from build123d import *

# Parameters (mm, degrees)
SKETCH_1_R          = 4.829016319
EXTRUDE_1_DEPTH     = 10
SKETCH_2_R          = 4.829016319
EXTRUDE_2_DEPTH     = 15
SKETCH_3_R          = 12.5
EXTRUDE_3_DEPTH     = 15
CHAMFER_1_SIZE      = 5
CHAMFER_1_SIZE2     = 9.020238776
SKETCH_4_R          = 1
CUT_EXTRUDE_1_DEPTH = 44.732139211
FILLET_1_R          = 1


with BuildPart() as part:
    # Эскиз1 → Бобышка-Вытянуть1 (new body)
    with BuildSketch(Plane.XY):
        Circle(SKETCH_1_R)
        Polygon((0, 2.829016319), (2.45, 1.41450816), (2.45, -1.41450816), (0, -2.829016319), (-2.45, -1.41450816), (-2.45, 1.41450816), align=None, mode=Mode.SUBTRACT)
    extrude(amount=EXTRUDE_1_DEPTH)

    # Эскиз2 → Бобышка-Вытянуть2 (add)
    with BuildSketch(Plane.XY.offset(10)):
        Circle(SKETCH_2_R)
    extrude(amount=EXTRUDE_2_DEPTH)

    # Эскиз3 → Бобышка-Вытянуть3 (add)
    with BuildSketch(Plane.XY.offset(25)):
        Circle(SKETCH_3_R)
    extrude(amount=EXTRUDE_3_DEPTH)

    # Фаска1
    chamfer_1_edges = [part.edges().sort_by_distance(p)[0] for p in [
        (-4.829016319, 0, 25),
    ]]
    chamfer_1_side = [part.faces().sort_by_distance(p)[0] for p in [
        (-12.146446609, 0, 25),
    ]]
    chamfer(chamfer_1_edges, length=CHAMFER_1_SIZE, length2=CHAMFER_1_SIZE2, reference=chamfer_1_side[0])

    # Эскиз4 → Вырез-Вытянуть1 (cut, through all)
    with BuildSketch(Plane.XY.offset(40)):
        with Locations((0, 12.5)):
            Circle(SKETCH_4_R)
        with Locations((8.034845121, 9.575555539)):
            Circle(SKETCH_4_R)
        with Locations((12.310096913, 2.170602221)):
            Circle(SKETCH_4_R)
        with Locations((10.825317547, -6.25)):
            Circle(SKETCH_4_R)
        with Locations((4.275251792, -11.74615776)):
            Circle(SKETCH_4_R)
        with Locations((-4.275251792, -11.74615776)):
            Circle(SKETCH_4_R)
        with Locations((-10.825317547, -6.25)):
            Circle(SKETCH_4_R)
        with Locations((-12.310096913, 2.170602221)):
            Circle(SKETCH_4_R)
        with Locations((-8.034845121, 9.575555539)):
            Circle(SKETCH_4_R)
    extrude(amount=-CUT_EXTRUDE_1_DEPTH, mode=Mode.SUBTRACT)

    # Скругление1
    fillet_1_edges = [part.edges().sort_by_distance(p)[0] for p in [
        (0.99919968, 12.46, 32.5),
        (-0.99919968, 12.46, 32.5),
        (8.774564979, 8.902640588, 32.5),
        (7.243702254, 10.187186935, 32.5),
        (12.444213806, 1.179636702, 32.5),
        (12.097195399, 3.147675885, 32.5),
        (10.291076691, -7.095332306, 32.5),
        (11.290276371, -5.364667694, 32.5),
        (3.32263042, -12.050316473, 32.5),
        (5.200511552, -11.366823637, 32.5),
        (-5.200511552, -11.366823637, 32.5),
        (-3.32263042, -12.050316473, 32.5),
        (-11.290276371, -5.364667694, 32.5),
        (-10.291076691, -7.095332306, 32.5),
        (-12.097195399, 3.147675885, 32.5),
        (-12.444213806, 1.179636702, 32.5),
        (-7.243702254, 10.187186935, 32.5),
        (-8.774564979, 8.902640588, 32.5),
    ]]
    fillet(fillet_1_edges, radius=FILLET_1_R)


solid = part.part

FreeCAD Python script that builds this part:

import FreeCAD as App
import Part
import Sketcher
from FreeCAD import Vector
Q = App.Units.Quantity


def edges_at(feature, points):
    """Names of the edges that pass closest to the given points."""
    edges = feature.Shape.Edges
    near = lambda p: min(range(len(edges)), key=lambda i: edges[i].distToShape(Part.Vertex(*p))[0])
    return sorted({f"Edge{near(p) + 1}" for p in points})


def add_polygon(sketch, points):
    """Adds a closed chain of lines whose ends are joined by coincident constraints."""
    first, n = sketch.GeometryCount, len(points)
    for a, b in zip(points, points[1:] + points[:1]):
        sketch.addGeometry(Part.LineSegment(App.Vector(*a, 0), App.Vector(*b, 0)), False)
    for i in range(n):
        sketch.addConstraint(Sketcher.Constraint("Coincident", first + i, 2, first + (i + 1) % n, 1))

doc = App.newDocument("Part")
body = doc.addObject("PartDesign::Body", "Body")

# Sketch on XY plane
sketch1 = body.newObject("Sketcher::SketchObject", "Sketch")
sketch1.AttachmentSupport = (doc.getObject("XY_Plane"), [""])
sketch1.MapMode = "FlatFace"
sketch1.addGeometry(Part.Circle(Vector(0, 0, 0), Vector(0, 0, 1), 4.8), False)  # 0
add_polygon(sketch1, [(-2.5, 1.4), (0, 2.8), (2.5, 1.4), (2.5, -1.4), (0, -2.8), (-2.5, -1.4)])  # lines 1-6
sketch1.addConstraint([
    Sketcher.Constraint("Vertical", 3),
    Sketcher.Constraint("Vertical", 6),
    Sketcher.Constraint("Coincident", 0, 3, -1, 1),
    Sketcher.Constraint("Symmetric", 1, 2, 4, 2, -1, 1),
    Sketcher.Constraint("Symmetric", 2, 2, 5, 2, -1, 1),
    Sketcher.Constraint("PointOnObject", 1, 2, -2),
    Sketcher.Constraint("Parallel", 1, 4),
    Sketcher.Constraint("Horizontal", 3, 2, 5, 2),
    Sketcher.Constraint("Angle", 1, Q("30 deg")),
    Sketcher.Constraint("DistanceX", 5, 2, 3, 2, Q("4.9 mm")),
    Sketcher.Constraint("Diameter", 0, Q("9.658033 mm")),
    Sketcher.Constraint("DistanceY", 3, 2, 3, 1, Q("2.829016 mm")),
])
pad1 = body.newObject("PartDesign::Pad", "Pad")
pad1.Profile = sketch1
pad1.Length = 10

# Sketch on XY plane
sketch2 = body.newObject("Sketcher::SketchObject", "Sketch001")
sketch2.AttachmentSupport = (doc.getObject("XY_Plane"), [""])
sketch2.MapMode = "FlatFace"
sketch2.AttachmentOffset = App.Placement(Vector(0, 0, 10), App.Rotation())
sketch2.addGeometry(Part.Circle(Vector(0, 0, 0), Vector(0, 0, 1), 4.8), False)
sketch2.addConstraint([
    Sketcher.Constraint("Coincident", 0, 3, -1, 1),
    Sketcher.Constraint("Diameter", 0, Q("9.658033 mm")),
])
pad2 = body.newObject("PartDesign::Pad", "Pad001")
pad2.Profile = sketch2
pad2.Length = 15

# Sketch on XY plane
sketch3 = body.newObject("Sketcher::SketchObject", "Sketch002")
sketch3.AttachmentSupport = (doc.getObject("XY_Plane"), [""])
sketch3.MapMode = "FlatFace"
sketch3.AttachmentOffset = App.Placement(Vector(0, 0, 25), App.Rotation())
sketch3.addGeometry(Part.Circle(Vector(0, 0, 0), Vector(0, 0, 1), 12), False)
sketch3.addConstraint([
    Sketcher.Constraint("Coincident", 0, 3, -1, 1),
    Sketcher.Constraint("Diameter", 0, Q("25 mm")),
])
pad3 = body.newObject("PartDesign::Pad", "Pad002")
pad3.Profile = sketch3
pad3.Length = 15
doc.recompute()

chamfer = body.newObject("PartDesign::Chamfer", "Chamfer")
chamfer.Base = (pad3, edges_at(pad3, [(-4.829, 0, 25)]))
chamfer.ChamferType = "Two distances"
chamfer.Size = 5
chamfer.Size2 = 9.020239
chamfer.FlipDirection = True

# Sketch on XY plane
sketch4 = body.newObject("Sketcher::SketchObject", "Sketch003")
sketch4.AttachmentSupport = (doc.getObject("XY_Plane"), [""])
sketch4.MapMode = "FlatFace"
sketch4.AttachmentOffset = App.Placement(Vector(0, 0, 40), App.Rotation())
sketch4.addGeometry([
    Part.Circle(Vector(0, 12.5, 0), Vector(0, 0, 1), 1),  # 0
    Part.Circle(Vector(8, 9.6, 0), Vector(0, 0, 1), 1),  # 1
    Part.Circle(Vector(12.3, 2.2, 0), Vector(0, 0, 1), 1),  # 2
    Part.Circle(Vector(10.8, -6.2, 0), Vector(0, 0, 1), 1),  # 3
    Part.Circle(Vector(4.3, -11.7, 0), Vector(0, 0, 1), 1),  # 4
    Part.Circle(Vector(-4.3, -11.7, 0), Vector(0, 0, 1), 1),  # 5
    Part.Circle(Vector(-10.8, -6.2, 0), Vector(0, 0, 1), 1),  # 6
    Part.Circle(Vector(-12.3, 2.2, 0), Vector(0, 0, 1), 1),  # 7
    Part.Circle(Vector(-8, 9.6, 0), Vector(0, 0, 1), 1),  # 8
], False)
sketch4.addConstraint([
    Sketcher.Constraint("Equal", 0, 1),
    Sketcher.Constraint("Equal", 1, 2),
    Sketcher.Constraint("Equal", 2, 3),
    Sketcher.Constraint("Equal", 3, 4),
    Sketcher.Constraint("Equal", 4, 5),
    Sketcher.Constraint("Equal", 5, 6),
    Sketcher.Constraint("Equal", 6, 7),
    Sketcher.Constraint("Equal", 7, 8),
    Sketcher.Constraint("Symmetric", 4, 3, 5, 3, -2),
    Sketcher.Constraint("Symmetric", 3, 3, 6, 3, -2),
    Sketcher.Constraint("Symmetric", 2, 3, 7, 3, -2),
    Sketcher.Constraint("Symmetric", 1, 3, 8, 3, -2),
    Sketcher.Constraint("PointOnObject", 0, 3, -2),
    Sketcher.Constraint("Diameter", 0, Q("2 mm")),
    Sketcher.Constraint("DistanceY", -1, 1, 0, 3, Q("12.5 mm")),
    Sketcher.Constraint("DistanceY", 3, 3, -1, 1, Q("6.25 mm")),
    Sketcher.Constraint("DistanceX", -1, 1, 4, 3, Q("4.275252 mm")),
    Sketcher.Constraint("DistanceX", 1, 3, 2, 3, Q("4.275252 mm")),
    Sketcher.Constraint("DistanceX", 3, 3, 2, 3, Q("1.484779 mm")),
    Sketcher.Constraint("DistanceY", 4, 3, 2, 3, Q("13.91676 mm")),
    Sketcher.Constraint("DistanceX", 5, 3, 3, 3, Q("15.100569 mm")),
    Sketcher.Constraint("DistanceY", -1, 1, 1, 3, Q("9.575556 mm")),
    Sketcher.Constraint("DistanceY", -1, 1, 2, 3, Q("2.170602 mm")),
])
pocket1 = body.newObject("PartDesign::Pocket", "Pocket")
pocket1.Profile = sketch4
pocket1.Type = "ThroughAll"
doc.recompute()

fillet = body.newObject("PartDesign::Fillet", "Fillet")
fillet.Base = (pocket1, edges_at(pocket1, [
    (0.999, 12.46, 32.5),
    (-0.999, 12.46, 32.5),
    (8.775, 8.903, 32.5),
    (7.244, 10.187, 32.5),
    (12.444, 1.18, 32.5),
    (12.097, 3.148, 32.5),
    (10.291, -7.095, 32.5),
    (11.29, -5.365, 32.5),
    (3.323, -12.05, 32.5),
    (5.201, -11.367, 32.5),
    (-5.201, -11.367, 32.5),
    (-3.323, -12.05, 32.5),
    (-11.29, -5.365, 32.5),
    (-10.291, -7.095, 32.5),
    (-12.097, 3.148, 32.5),
    (-12.444, 1.18, 32.5),
    (-7.244, 10.187, 32.5),
    (-8.775, 8.903, 32.5),
]))
fillet.Radius = 1

doc.recompute()
